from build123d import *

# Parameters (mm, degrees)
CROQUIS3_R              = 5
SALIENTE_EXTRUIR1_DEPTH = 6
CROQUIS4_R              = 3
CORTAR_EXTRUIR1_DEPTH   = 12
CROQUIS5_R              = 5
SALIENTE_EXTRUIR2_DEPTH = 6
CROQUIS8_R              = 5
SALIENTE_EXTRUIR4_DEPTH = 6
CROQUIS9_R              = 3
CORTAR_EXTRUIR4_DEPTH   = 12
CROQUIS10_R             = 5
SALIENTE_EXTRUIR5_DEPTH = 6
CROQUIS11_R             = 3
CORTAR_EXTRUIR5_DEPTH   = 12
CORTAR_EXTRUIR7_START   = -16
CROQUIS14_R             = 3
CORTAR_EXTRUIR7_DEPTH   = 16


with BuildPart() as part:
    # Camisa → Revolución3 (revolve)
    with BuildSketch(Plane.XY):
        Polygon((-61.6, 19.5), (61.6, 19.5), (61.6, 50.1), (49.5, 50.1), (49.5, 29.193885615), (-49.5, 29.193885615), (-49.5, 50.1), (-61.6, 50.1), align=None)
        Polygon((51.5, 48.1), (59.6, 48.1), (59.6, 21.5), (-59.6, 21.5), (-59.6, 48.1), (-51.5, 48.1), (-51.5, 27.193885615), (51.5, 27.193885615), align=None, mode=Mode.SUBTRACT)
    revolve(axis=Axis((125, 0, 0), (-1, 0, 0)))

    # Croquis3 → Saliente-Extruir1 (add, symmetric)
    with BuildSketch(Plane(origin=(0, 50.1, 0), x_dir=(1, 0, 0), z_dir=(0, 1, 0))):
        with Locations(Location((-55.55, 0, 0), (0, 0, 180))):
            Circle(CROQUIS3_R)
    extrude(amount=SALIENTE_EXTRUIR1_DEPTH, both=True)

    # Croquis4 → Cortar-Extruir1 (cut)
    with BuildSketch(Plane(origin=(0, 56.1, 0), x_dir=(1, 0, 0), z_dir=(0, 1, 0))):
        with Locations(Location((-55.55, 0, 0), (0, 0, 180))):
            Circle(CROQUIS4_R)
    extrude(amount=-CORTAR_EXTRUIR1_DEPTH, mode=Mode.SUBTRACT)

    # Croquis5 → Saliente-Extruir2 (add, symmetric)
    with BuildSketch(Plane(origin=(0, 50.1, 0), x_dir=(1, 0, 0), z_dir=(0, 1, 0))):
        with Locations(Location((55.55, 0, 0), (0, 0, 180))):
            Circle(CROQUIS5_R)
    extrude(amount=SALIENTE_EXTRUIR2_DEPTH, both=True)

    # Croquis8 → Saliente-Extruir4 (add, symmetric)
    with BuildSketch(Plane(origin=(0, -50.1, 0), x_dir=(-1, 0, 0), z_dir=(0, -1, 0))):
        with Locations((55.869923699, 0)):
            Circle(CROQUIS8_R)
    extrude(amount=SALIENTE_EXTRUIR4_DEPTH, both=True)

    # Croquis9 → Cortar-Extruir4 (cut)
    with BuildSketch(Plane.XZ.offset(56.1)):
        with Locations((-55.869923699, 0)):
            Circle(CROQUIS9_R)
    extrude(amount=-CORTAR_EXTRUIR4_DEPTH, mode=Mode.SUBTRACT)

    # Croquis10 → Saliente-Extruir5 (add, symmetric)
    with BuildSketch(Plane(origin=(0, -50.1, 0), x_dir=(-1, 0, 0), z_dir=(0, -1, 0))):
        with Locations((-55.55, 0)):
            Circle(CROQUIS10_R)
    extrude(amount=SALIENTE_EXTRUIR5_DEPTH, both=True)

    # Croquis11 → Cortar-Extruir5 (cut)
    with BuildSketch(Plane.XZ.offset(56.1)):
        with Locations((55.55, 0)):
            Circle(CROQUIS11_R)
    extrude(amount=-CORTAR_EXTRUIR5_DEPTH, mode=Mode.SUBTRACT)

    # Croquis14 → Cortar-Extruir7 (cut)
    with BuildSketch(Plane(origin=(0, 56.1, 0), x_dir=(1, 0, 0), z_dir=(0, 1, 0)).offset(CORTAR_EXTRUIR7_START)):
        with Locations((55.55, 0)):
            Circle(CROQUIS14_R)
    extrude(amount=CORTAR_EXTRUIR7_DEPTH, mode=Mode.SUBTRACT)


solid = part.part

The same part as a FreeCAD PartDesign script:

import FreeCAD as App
import Part
import Sketcher
Q = App.Units.Quantity


def add_polygon(sketch, points):
    """Adds a closed chain of lines whose ends are joined by coincident constraints."""
    first, n = sketch.GeometryCount, len(points)
    for a, b in zip(points, points[1:] + points[:1]):
        sketch.addGeometry(Part.LineSegment(App.Vector(*a, 0), App.Vector(*b, 0)), False)
    for i in range(n):
        sketch.addConstraint(Sketcher.Constraint("Coincident", first + i, 2, first + (i + 1) % n, 1))

doc = App.newDocument("Part")
body = doc.addObject("PartDesign::Body", "Body")

sketch1 = doc.addObject("Sketcher::SketchObject", "Sketch")
body.addObject(sketch1)
sketch1.AttachmentSupport = (doc.XY_Plane, [""])
sketch1.MapMode = "FlatFace"
add_polygon(sketch1, [(-62, 20), (62, 20), (62, 50), (50, 50), (50, 29), (-50, 29), (-50, 50), (-62, 50)])
add_polygon(sketch1, [(52, 27), (52, 48), (60, 48), (60, 22), (-60, 22), (-60, 48), (-52, 48), (-52, 27)])
sketch1.addConstraint([
    Sketcher.Constraint("Horizontal", 0),
    Sketcher.Constraint("Vertical", 1),
    Sketcher.Constraint("Horizontal", 2),
    Sketcher.Constraint("Vertical", 3),
    Sketcher.Constraint("Horizontal", 4),
    Sketcher.Constraint("Vertical", 5),
    Sketcher.Constraint("Horizontal", 6),
    Sketcher.Constraint("Vertical", 7),
    Sketcher.Constraint("Vertical", 8),
    Sketcher.Constraint("Horizontal", 9),
    Sketcher.Constraint("Vertical", 10),
    Sketcher.Constraint("Horizontal", 11),
    Sketcher.Constraint("Vertical", 12),
    Sketcher.Constraint("Horizontal", 13),
    Sketcher.Constraint("Vertical", 14),
    Sketcher.Constraint("Horizontal", 15),
    Sketcher.Constraint("Symmetric", 2, 2, 5, 2, -2),
    Sketcher.Constraint("Symmetric", 9, 2, 12, 2, -2),
    Sketcher.Constraint("Equal", 2, 6),
    Sketcher.Constraint("Equal", 9, 13),
    Sketcher.Constraint("Equal", 5, 8),
    Sketcher.Constraint("DistanceX", 4, 2, 4, 1, Q("99 mm")),
    Sketcher.Constraint("DistanceX", 15, 1, 15, 2, Q("103 mm")),
    Sketcher.Constraint("DistanceX", 0, 1, 0, 2, Q("123.2 mm")),
    Sketcher.Constraint("DistanceX", 9, 1, 9, 2, Q("8.1 mm")),
    Sketcher.Constraint("DistanceY", 1, 1, 1, 2, Q("30.6 mm")),
    Sketcher.Constraint("DistanceY", 10, 2, 10, 1, Q("26.6 mm")),
    Sketcher.Constraint("DistanceY", 8, 2, 2, 2, Q("2 mm")),
    Sketcher.Constraint("DistanceY", -1, 1, 0, 2, Q("19.5 mm")),
    Sketcher.Constraint("DistanceY", 3, 2, 3, 1, Q("20.906114 mm")),
])
revolution = doc.addObject("PartDesign::Revolution", "Revolution")
body.addObject(revolution)
revolution.Profile = sketch1
revolution.ReferenceAxis = (sketch1, ["H_Axis"])
revolution.Angle = 360

sketch2 = doc.addObject("Sketcher::SketchObject", "Sketch001")
body.addObject(sketch2)
sketch2.AttachmentSupport = (doc.XZ_Plane, [""])
sketch2.MapMode = "FlatFace"
sketch2.AttachmentOffset = App.Placement(App.Vector(0, 0, -50.1), App.Rotation())
sketch2.addGeometry(Part.Circle(App.Vector(-56, 0, 0), App.Vector(0, 0, 1), 5), False)
sketch2.addConstraint([
    Sketcher.Constraint("PointOnObject", 0, 3, -1),
    Sketcher.Constraint("Diameter", 0, Q("10 mm")),
    Sketcher.Constraint("DistanceX", 0, 3, -1, 1, Q("55.55 mm")),
])
pad1 = doc.addObject("PartDesign::Pad", "Pad")
body.addObject(pad1)
pad1.Profile = sketch2
pad1.Length = 12
pad1.Midplane = True

sketch3 = doc.addObject("Sketcher::SketchObject", "Sketch002")
body.addObject(sketch3)
sketch3.AttachmentSupport = (doc.XZ_Plane, [""])
sketch3.MapMode = "FlatFace"
sketch3.AttachmentOffset = App.Placement(App.Vector(0, 0, -56.1), App.Rotation())
sketch3.addGeometry(Part.Circle(App.Vector(-55.5, 0, 0), App.Vector(0, 0, 1), 3), False)
sketch3.addConstraint([
    Sketcher.Constraint("PointOnObject", 0, 3, -1),
    Sketcher.Constraint("Diameter", 0, Q("6 mm")),
    Sketcher.Constraint("DistanceX", 0, 3, -1, 1, Q("55.55 mm")),
])
pocket1 = doc.addObject("PartDesign::Pocket", "Pocket")
body.addObject(pocket1)
pocket1.Profile = sketch3
pocket1.Length = 12
pocket1.Reversed = True

sketch4 = doc.addObject("Sketcher::SketchObject", "Sketch003")
body.addObject(sketch4)
sketch4.AttachmentSupport = (doc.XZ_Plane, [""])
sketch4.MapMode = "FlatFace"
sketch4.AttachmentOffset = App.Placement(App.Vector(0, 0, -50.1), App.Rotation())
sketch4.addGeometry(Part.Circle(App.Vector(56, 0, 0), App.Vector(0, 0, 1), 5), False)
sketch4.addConstraint([
    Sketcher.Constraint("PointOnObject", 0, 3, -1),
    Sketcher.Constraint("Diameter", 0, Q("10 mm")),
    Sketcher.Constraint("DistanceX", -1, 1, 0, 3, Q("55.55 mm")),
])
pad2 = doc.addObject("PartDesign::Pad", "Pad001")
body.addObject(pad2)
pad2.Profile = sketch4
pad2.Length = 12
pad2.Midplane = True

sketch5 = doc.addObject("Sketcher::SketchObject", "Sketch004")
body.addObject(sketch5)
sketch5.AttachmentSupport = (doc.XZ_Plane, [""])
sketch5.MapMode = "FlatFace"
sketch5.AttachmentOffset = App.Placement(App.Vector(0, 0, 50.1), App.Rotation())
sketch5.addGeometry(Part.Circle(App.Vector(-56, 0, 0), App.Vector(0, 0, 1), 5), False)
sketch5.addConstraint([
    Sketcher.Constraint("PointOnObject", 0, 3, -1),
    Sketcher.Constraint("Diameter", 0, Q("10 mm")),
    Sketcher.Constraint("DistanceX", 0, 3, -1, 1, Q("55.869924 mm")),
])
pad3 = doc.addObject("PartDesign::Pad", "Pad002")
body.addObject(pad3)
pad3.Profile = sketch5
pad3.Length = 12
pad3.Midplane = True

sketch6 = doc.addObject("Sketcher::SketchObject", "Sketch005")
body.addObject(sketch6)
sketch6.AttachmentSupport = (doc.XZ_Plane, [""])
sketch6.MapMode = "FlatFace"
sketch6.AttachmentOffset = App.Placement(App.Vector(0, 0, 56.1), App.Rotation())
sketch6.addGeometry(Part.Circle(App.Vector(-55.9, 0, 0), App.Vector(0, 0, 1), 3), False)
sketch6.addConstraint([
    Sketcher.Constraint("PointOnObject", 0, 3, -1),
    Sketcher.Constraint("Diameter", 0, Q("6 mm")),
    Sketcher.Constraint("DistanceX", 0, 3, -1, 1, Q("55.869924 mm")),
])
pocket2 = doc.addObject("PartDesign::Pocket", "Pocket001")
body.addObject(pocket2)
pocket2.Profile = sketch6
pocket2.Length = 12

sketch7 = doc.addObject("Sketcher::SketchObject", "Sketch006")
body.addObject(sketch7)
sketch7.AttachmentSupport = (doc.XZ_Plane, [""])
sketch7.MapMode = "FlatFace"
sketch7.AttachmentOffset = App.Placement(App.Vector(0, 0, 50.1), App.Rotation())
sketch7.addGeometry(Part.Circle(App.Vector(56, 0, 0), App.Vector(0, 0, 1), 5), False)
sketch7.addConstraint([
    Sketcher.Constraint("PointOnObject", 0, 3, -1),
    Sketcher.Constraint("Diameter", 0, Q("10 mm")),
    Sketcher.Constraint("DistanceX", -1, 1, 0, 3, Q("55.55 mm")),
])
pad4 = doc.addObject("PartDesign::Pad", "Pad003")
body.addObject(pad4)
pad4.Profile = sketch7
pad4.Length = 12
pad4.Midplane = True

sketch8 = doc.addObject("Sketcher::SketchObject", "Sketch007")
body.addObject(sketch8)
sketch8.AttachmentSupport = (doc.XZ_Plane, [""])
sketch8.MapMode = "FlatFace"
sketch8.AttachmentOffset = App.Placement(App.Vector(0, 0, 56.1), App.Rotation())
sketch8.addGeometry(Part.Circle(App.Vector(55.5, 0, 0), App.Vector(0, 0, 1), 3), False)
sketch8.addConstraint([
    Sketcher.Constraint("PointOnObject", 0, 3, -1),
    Sketcher.Constraint("Diameter", 0, Q("6 mm")),
    Sketcher.Constraint("DistanceX", -1, 1, 0, 3, Q("55.55 mm")),
])
pocket3 = doc.addObject("PartDesign::Pocket", "Pocket002")
body.addObject(pocket3)
pocket3.Profile = sketch8
pocket3.Length = 12

sketch9 = doc.addObject("Sketcher::SketchObject", "Sketch008")
body.addObject(sketch9)
sketch9.AttachmentSupport = (doc.XZ_Plane, [""])
sketch9.MapMode = "FlatFace"
sketch9.AttachmentOffset = App.Placement(App.Vector(0, 0, -40.1), App.Rotation())
sketch9.addGeometry(Part.Circle(App.Vector(55.5, 0, 0), App.Vector(0, 0, 1), 3), False)
sketch9.addConstraint([
    Sketcher.Constraint("PointOnObject", 0, 3, -1),
    Sketcher.Constraint("Diameter", 0, Q("6 mm")),
    Sketcher.Constraint("DistanceX", -1, 1, 0, 3, Q("55.55 mm")),
])
pocket4 = doc.addObject("PartDesign::Pocket", "Pocket003")
body.addObject(pocket4)
pocket4.Profile = sketch9
pocket4.Length = 16

doc.recompute()
